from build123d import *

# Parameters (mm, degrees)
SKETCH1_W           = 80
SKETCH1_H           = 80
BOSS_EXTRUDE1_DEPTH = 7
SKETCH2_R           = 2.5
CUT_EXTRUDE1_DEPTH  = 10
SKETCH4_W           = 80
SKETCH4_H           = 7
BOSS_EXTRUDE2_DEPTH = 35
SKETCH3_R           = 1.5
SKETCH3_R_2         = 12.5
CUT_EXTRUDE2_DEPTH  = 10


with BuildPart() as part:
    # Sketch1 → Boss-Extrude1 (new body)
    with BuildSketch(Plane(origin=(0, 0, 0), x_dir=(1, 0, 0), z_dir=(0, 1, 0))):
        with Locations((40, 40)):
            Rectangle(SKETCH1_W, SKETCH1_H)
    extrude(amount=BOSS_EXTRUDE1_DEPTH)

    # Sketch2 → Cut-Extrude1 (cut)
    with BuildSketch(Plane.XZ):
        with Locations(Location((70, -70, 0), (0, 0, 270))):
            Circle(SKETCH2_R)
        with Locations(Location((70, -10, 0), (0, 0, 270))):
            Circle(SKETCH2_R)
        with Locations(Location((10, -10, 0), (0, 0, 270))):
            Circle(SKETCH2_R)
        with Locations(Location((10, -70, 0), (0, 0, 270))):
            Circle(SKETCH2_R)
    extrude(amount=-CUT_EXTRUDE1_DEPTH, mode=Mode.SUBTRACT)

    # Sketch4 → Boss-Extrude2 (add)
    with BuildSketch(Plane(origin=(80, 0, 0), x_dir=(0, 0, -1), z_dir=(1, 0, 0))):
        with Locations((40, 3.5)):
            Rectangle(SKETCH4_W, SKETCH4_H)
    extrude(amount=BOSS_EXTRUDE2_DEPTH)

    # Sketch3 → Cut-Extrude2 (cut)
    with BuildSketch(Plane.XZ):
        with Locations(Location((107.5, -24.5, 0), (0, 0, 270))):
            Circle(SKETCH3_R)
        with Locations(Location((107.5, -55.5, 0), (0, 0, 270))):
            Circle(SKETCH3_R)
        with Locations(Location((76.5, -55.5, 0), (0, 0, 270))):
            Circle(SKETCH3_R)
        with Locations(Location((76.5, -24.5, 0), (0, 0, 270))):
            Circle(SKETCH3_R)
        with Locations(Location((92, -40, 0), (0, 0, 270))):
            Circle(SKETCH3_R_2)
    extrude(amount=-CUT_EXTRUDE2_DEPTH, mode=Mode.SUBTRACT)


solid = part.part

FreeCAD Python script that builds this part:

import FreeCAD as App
import Part
import Sketcher


def add_polygon(sketch, points):
    """Adds a closed chain of lines whose ends are joined by coincident constraints."""
    first, n = sketch.GeometryCount, len(points)
    for a, b in zip(points, points[1:] + points[:1]):
        sketch.addGeometry(Part.LineSegment(App.Vector(*a, 0), App.Vector(*b, 0)), False)
    for i in range(n):
        sketch.addConstraint(Sketcher.Constraint("Coincident", first + i, 2, first + (i + 1) % n, 1))

doc = App.newDocument("Part")
body = doc.addObject("PartDesign::Body", "Body")

# Sketch on XZ plane
sketch1 = body.newObject("Sketcher::SketchObject", "Sketch")
sketch1.AttachmentSupport = (doc.getObject("XZ_Plane"), [""])
sketch1.MapMode = "FlatFace"
add_polygon(sketch1, [(0, -80), (0, 0), (80, 0), (80, -80)])  # lines 0-3
sketch1.addConstraint([
    Sketcher.Constraint("Vertical", 0),
    Sketcher.Constraint("Horizontal", 1),
    Sketcher.Constraint("Vertical", 2),
    Sketcher.Constraint("Horizontal", 3),
    Sketcher.Constraint("Coincident", 0, 2, -1, 1),
    Sketcher.Constraint("Equal", 3, 0),
    Sketcher.Constraint("DistanceX", 1, 1, 1, 2, 80.0),
])
pad1 = body.newObject("PartDesign::Pad", "Pad")
pad1.Profile = sketch1
pad1.Length = 7
pad1.Reversed = True

# Sketch on XZ plane
sketch2 = body.newObject("Sketcher::SketchObject", "Sketch001")
sketch2.AttachmentSupport = (doc.getObject("XZ_Plane"), [""])
sketch2.MapMode = "FlatFace"
sketch2.addGeometry([
    Part.Circle(App.Vector(70, -70, 0), App.Vector(0, 0, 1), 2.5),
    Part.Circle(App.Vector(70, -10, 0), App.Vector(0, 0, 1), 2.5),
    Part.Circle(App.Vector(10, -10, 0), App.Vector(0, 0, 1), 2.5),
    Part.Circle(App.Vector(10, -70, 0), App.Vector(0, 0, 1), 2.5),
], False)
sketch2.addConstraint([
    Sketcher.Constraint("Equal", 0, 1),
    Sketcher.Constraint("Equal", 1, 2),
    Sketcher.Constraint("Equal", 2, 3),
    Sketcher.Constraint("Horizontal", 1, 3, 2, 3),
    Sketcher.Constraint("Horizontal", 0, 3, 3, 3),
    Sketcher.Constraint("Vertical", 0, 3, 1, 3),
    Sketcher.Constraint("Vertical", 2, 3, 3, 3),
    Sketcher.Constraint("Diameter", 0, 5.0),
    Sketcher.Constraint("DistanceX", -1, 1, 0, 3, 70.0),
    Sketcher.Constraint("DistanceY", 0, 3, -1, 1, 70.0),
    Sketcher.Constraint("DistanceY", 1, 3, -1, 1, 10.0),
    Sketcher.Constraint("DistanceX", -1, 1, 2, 3, 10.0),
])
pocket1 = body.newObject("PartDesign::Pocket", "Pocket")
pocket1.Profile = sketch2
pocket1.Length = 10

# Sketch on YZ plane
sketch3 = body.newObject("Sketcher::SketchObject", "Sketch002")
sketch3.AttachmentSupport = (doc.getObject("YZ_Plane"), [""])
sketch3.MapMode = "FlatFace"
sketch3.AttachmentOffset = App.Placement(App.Vector(0, 0, 80), App.Rotation())
add_polygon(sketch3, [(7, 0), (0, 0), (0, -80), (7, -80)])  # lines 0-3
sketch3.addConstraint([
    Sketcher.Constraint("Horizontal", 0),
    Sketcher.Constraint("Vertical", 1),
    Sketcher.Constraint("Horizontal", 2),
    Sketcher.Constraint("Vertical", 3),
    Sketcher.Constraint("Coincident", 0, 2, -1, 1),
    Sketcher.Constraint("DistanceX", 0, 2, 0, 1, 7.0),
    Sketcher.Constraint("DistanceY", 1, 2, 1, 1, 80.0),
])
pad2 = body.newObject("PartDesign::Pad", "Pad001")
pad2.Profile = sketch3
pad2.Length = 35

# Sketch on XZ plane
sketch4 = body.newObject("Sketcher::SketchObject", "Sketch003")
sketch4.AttachmentSupport = (doc.getObject("XZ_Plane"), [""])
sketch4.MapMode = "FlatFace"
sketch4.addGeometry([
    Part.Circle(App.Vector(107.5, -24.5, 0), App.Vector(0, 0, 1), 1.5),  # 0
    Part.Circle(App.Vector(107.5, -55.5, 0), App.Vector(0, 0, 1), 1.5),  # 1
    Part.Circle(App.Vector(76.5, -55.5, 0), App.Vector(0, 0, 1), 1.5),  # 2
    Part.Circle(App.Vector(76.5, -24.5, 0), App.Vector(0, 0, 1), 1.5),  # 3
    Part.Circle(App.Vector(92, -40, 0), App.Vector(0, 0, 1), 12.5),  # 4
], False)
sketch4.addConstraint([
    Sketcher.Constraint("Equal", 0, 1),
    Sketcher.Constraint("Equal", 1, 2),
    Sketcher.Constraint("Equal", 2, 3),
    Sketcher.Constraint("Horizontal", 1, 3, 2, 3),
    Sketcher.Constraint("Horizontal", 0, 3, 3, 3),
    Sketcher.Constraint("Vertical", 0, 3, 1, 3),
    Sketcher.Constraint("Vertical", 2, 3, 3, 3),
    Sketcher.Constraint("Diameter", 0, 3.0),
    Sketcher.Constraint("Diameter", 4, 25.0),
    Sketcher.Constraint("DistanceX", -1, 1, 4, 3, 92.0),
    Sketcher.Constraint("DistanceY", 4, 3, -1, 1, 40.0),
    Sketcher.Constraint("DistanceY", 1, 3, 0, 3, 31.0),
    Sketcher.Constraint("DistanceX", 2, 3, 1, 3, 31.0),
    Sketcher.Constraint("DistanceX", -1, 1, 0, 3, 107.5),
    Sketcher.Constraint("DistanceY", 0, 3, -1, 1, 24.5),
])
pocket2 = body.newObject("PartDesign::Pocket", "Pocket001")
pocket2.Profile = sketch4
pocket2.Length = 10

doc.recompute()
